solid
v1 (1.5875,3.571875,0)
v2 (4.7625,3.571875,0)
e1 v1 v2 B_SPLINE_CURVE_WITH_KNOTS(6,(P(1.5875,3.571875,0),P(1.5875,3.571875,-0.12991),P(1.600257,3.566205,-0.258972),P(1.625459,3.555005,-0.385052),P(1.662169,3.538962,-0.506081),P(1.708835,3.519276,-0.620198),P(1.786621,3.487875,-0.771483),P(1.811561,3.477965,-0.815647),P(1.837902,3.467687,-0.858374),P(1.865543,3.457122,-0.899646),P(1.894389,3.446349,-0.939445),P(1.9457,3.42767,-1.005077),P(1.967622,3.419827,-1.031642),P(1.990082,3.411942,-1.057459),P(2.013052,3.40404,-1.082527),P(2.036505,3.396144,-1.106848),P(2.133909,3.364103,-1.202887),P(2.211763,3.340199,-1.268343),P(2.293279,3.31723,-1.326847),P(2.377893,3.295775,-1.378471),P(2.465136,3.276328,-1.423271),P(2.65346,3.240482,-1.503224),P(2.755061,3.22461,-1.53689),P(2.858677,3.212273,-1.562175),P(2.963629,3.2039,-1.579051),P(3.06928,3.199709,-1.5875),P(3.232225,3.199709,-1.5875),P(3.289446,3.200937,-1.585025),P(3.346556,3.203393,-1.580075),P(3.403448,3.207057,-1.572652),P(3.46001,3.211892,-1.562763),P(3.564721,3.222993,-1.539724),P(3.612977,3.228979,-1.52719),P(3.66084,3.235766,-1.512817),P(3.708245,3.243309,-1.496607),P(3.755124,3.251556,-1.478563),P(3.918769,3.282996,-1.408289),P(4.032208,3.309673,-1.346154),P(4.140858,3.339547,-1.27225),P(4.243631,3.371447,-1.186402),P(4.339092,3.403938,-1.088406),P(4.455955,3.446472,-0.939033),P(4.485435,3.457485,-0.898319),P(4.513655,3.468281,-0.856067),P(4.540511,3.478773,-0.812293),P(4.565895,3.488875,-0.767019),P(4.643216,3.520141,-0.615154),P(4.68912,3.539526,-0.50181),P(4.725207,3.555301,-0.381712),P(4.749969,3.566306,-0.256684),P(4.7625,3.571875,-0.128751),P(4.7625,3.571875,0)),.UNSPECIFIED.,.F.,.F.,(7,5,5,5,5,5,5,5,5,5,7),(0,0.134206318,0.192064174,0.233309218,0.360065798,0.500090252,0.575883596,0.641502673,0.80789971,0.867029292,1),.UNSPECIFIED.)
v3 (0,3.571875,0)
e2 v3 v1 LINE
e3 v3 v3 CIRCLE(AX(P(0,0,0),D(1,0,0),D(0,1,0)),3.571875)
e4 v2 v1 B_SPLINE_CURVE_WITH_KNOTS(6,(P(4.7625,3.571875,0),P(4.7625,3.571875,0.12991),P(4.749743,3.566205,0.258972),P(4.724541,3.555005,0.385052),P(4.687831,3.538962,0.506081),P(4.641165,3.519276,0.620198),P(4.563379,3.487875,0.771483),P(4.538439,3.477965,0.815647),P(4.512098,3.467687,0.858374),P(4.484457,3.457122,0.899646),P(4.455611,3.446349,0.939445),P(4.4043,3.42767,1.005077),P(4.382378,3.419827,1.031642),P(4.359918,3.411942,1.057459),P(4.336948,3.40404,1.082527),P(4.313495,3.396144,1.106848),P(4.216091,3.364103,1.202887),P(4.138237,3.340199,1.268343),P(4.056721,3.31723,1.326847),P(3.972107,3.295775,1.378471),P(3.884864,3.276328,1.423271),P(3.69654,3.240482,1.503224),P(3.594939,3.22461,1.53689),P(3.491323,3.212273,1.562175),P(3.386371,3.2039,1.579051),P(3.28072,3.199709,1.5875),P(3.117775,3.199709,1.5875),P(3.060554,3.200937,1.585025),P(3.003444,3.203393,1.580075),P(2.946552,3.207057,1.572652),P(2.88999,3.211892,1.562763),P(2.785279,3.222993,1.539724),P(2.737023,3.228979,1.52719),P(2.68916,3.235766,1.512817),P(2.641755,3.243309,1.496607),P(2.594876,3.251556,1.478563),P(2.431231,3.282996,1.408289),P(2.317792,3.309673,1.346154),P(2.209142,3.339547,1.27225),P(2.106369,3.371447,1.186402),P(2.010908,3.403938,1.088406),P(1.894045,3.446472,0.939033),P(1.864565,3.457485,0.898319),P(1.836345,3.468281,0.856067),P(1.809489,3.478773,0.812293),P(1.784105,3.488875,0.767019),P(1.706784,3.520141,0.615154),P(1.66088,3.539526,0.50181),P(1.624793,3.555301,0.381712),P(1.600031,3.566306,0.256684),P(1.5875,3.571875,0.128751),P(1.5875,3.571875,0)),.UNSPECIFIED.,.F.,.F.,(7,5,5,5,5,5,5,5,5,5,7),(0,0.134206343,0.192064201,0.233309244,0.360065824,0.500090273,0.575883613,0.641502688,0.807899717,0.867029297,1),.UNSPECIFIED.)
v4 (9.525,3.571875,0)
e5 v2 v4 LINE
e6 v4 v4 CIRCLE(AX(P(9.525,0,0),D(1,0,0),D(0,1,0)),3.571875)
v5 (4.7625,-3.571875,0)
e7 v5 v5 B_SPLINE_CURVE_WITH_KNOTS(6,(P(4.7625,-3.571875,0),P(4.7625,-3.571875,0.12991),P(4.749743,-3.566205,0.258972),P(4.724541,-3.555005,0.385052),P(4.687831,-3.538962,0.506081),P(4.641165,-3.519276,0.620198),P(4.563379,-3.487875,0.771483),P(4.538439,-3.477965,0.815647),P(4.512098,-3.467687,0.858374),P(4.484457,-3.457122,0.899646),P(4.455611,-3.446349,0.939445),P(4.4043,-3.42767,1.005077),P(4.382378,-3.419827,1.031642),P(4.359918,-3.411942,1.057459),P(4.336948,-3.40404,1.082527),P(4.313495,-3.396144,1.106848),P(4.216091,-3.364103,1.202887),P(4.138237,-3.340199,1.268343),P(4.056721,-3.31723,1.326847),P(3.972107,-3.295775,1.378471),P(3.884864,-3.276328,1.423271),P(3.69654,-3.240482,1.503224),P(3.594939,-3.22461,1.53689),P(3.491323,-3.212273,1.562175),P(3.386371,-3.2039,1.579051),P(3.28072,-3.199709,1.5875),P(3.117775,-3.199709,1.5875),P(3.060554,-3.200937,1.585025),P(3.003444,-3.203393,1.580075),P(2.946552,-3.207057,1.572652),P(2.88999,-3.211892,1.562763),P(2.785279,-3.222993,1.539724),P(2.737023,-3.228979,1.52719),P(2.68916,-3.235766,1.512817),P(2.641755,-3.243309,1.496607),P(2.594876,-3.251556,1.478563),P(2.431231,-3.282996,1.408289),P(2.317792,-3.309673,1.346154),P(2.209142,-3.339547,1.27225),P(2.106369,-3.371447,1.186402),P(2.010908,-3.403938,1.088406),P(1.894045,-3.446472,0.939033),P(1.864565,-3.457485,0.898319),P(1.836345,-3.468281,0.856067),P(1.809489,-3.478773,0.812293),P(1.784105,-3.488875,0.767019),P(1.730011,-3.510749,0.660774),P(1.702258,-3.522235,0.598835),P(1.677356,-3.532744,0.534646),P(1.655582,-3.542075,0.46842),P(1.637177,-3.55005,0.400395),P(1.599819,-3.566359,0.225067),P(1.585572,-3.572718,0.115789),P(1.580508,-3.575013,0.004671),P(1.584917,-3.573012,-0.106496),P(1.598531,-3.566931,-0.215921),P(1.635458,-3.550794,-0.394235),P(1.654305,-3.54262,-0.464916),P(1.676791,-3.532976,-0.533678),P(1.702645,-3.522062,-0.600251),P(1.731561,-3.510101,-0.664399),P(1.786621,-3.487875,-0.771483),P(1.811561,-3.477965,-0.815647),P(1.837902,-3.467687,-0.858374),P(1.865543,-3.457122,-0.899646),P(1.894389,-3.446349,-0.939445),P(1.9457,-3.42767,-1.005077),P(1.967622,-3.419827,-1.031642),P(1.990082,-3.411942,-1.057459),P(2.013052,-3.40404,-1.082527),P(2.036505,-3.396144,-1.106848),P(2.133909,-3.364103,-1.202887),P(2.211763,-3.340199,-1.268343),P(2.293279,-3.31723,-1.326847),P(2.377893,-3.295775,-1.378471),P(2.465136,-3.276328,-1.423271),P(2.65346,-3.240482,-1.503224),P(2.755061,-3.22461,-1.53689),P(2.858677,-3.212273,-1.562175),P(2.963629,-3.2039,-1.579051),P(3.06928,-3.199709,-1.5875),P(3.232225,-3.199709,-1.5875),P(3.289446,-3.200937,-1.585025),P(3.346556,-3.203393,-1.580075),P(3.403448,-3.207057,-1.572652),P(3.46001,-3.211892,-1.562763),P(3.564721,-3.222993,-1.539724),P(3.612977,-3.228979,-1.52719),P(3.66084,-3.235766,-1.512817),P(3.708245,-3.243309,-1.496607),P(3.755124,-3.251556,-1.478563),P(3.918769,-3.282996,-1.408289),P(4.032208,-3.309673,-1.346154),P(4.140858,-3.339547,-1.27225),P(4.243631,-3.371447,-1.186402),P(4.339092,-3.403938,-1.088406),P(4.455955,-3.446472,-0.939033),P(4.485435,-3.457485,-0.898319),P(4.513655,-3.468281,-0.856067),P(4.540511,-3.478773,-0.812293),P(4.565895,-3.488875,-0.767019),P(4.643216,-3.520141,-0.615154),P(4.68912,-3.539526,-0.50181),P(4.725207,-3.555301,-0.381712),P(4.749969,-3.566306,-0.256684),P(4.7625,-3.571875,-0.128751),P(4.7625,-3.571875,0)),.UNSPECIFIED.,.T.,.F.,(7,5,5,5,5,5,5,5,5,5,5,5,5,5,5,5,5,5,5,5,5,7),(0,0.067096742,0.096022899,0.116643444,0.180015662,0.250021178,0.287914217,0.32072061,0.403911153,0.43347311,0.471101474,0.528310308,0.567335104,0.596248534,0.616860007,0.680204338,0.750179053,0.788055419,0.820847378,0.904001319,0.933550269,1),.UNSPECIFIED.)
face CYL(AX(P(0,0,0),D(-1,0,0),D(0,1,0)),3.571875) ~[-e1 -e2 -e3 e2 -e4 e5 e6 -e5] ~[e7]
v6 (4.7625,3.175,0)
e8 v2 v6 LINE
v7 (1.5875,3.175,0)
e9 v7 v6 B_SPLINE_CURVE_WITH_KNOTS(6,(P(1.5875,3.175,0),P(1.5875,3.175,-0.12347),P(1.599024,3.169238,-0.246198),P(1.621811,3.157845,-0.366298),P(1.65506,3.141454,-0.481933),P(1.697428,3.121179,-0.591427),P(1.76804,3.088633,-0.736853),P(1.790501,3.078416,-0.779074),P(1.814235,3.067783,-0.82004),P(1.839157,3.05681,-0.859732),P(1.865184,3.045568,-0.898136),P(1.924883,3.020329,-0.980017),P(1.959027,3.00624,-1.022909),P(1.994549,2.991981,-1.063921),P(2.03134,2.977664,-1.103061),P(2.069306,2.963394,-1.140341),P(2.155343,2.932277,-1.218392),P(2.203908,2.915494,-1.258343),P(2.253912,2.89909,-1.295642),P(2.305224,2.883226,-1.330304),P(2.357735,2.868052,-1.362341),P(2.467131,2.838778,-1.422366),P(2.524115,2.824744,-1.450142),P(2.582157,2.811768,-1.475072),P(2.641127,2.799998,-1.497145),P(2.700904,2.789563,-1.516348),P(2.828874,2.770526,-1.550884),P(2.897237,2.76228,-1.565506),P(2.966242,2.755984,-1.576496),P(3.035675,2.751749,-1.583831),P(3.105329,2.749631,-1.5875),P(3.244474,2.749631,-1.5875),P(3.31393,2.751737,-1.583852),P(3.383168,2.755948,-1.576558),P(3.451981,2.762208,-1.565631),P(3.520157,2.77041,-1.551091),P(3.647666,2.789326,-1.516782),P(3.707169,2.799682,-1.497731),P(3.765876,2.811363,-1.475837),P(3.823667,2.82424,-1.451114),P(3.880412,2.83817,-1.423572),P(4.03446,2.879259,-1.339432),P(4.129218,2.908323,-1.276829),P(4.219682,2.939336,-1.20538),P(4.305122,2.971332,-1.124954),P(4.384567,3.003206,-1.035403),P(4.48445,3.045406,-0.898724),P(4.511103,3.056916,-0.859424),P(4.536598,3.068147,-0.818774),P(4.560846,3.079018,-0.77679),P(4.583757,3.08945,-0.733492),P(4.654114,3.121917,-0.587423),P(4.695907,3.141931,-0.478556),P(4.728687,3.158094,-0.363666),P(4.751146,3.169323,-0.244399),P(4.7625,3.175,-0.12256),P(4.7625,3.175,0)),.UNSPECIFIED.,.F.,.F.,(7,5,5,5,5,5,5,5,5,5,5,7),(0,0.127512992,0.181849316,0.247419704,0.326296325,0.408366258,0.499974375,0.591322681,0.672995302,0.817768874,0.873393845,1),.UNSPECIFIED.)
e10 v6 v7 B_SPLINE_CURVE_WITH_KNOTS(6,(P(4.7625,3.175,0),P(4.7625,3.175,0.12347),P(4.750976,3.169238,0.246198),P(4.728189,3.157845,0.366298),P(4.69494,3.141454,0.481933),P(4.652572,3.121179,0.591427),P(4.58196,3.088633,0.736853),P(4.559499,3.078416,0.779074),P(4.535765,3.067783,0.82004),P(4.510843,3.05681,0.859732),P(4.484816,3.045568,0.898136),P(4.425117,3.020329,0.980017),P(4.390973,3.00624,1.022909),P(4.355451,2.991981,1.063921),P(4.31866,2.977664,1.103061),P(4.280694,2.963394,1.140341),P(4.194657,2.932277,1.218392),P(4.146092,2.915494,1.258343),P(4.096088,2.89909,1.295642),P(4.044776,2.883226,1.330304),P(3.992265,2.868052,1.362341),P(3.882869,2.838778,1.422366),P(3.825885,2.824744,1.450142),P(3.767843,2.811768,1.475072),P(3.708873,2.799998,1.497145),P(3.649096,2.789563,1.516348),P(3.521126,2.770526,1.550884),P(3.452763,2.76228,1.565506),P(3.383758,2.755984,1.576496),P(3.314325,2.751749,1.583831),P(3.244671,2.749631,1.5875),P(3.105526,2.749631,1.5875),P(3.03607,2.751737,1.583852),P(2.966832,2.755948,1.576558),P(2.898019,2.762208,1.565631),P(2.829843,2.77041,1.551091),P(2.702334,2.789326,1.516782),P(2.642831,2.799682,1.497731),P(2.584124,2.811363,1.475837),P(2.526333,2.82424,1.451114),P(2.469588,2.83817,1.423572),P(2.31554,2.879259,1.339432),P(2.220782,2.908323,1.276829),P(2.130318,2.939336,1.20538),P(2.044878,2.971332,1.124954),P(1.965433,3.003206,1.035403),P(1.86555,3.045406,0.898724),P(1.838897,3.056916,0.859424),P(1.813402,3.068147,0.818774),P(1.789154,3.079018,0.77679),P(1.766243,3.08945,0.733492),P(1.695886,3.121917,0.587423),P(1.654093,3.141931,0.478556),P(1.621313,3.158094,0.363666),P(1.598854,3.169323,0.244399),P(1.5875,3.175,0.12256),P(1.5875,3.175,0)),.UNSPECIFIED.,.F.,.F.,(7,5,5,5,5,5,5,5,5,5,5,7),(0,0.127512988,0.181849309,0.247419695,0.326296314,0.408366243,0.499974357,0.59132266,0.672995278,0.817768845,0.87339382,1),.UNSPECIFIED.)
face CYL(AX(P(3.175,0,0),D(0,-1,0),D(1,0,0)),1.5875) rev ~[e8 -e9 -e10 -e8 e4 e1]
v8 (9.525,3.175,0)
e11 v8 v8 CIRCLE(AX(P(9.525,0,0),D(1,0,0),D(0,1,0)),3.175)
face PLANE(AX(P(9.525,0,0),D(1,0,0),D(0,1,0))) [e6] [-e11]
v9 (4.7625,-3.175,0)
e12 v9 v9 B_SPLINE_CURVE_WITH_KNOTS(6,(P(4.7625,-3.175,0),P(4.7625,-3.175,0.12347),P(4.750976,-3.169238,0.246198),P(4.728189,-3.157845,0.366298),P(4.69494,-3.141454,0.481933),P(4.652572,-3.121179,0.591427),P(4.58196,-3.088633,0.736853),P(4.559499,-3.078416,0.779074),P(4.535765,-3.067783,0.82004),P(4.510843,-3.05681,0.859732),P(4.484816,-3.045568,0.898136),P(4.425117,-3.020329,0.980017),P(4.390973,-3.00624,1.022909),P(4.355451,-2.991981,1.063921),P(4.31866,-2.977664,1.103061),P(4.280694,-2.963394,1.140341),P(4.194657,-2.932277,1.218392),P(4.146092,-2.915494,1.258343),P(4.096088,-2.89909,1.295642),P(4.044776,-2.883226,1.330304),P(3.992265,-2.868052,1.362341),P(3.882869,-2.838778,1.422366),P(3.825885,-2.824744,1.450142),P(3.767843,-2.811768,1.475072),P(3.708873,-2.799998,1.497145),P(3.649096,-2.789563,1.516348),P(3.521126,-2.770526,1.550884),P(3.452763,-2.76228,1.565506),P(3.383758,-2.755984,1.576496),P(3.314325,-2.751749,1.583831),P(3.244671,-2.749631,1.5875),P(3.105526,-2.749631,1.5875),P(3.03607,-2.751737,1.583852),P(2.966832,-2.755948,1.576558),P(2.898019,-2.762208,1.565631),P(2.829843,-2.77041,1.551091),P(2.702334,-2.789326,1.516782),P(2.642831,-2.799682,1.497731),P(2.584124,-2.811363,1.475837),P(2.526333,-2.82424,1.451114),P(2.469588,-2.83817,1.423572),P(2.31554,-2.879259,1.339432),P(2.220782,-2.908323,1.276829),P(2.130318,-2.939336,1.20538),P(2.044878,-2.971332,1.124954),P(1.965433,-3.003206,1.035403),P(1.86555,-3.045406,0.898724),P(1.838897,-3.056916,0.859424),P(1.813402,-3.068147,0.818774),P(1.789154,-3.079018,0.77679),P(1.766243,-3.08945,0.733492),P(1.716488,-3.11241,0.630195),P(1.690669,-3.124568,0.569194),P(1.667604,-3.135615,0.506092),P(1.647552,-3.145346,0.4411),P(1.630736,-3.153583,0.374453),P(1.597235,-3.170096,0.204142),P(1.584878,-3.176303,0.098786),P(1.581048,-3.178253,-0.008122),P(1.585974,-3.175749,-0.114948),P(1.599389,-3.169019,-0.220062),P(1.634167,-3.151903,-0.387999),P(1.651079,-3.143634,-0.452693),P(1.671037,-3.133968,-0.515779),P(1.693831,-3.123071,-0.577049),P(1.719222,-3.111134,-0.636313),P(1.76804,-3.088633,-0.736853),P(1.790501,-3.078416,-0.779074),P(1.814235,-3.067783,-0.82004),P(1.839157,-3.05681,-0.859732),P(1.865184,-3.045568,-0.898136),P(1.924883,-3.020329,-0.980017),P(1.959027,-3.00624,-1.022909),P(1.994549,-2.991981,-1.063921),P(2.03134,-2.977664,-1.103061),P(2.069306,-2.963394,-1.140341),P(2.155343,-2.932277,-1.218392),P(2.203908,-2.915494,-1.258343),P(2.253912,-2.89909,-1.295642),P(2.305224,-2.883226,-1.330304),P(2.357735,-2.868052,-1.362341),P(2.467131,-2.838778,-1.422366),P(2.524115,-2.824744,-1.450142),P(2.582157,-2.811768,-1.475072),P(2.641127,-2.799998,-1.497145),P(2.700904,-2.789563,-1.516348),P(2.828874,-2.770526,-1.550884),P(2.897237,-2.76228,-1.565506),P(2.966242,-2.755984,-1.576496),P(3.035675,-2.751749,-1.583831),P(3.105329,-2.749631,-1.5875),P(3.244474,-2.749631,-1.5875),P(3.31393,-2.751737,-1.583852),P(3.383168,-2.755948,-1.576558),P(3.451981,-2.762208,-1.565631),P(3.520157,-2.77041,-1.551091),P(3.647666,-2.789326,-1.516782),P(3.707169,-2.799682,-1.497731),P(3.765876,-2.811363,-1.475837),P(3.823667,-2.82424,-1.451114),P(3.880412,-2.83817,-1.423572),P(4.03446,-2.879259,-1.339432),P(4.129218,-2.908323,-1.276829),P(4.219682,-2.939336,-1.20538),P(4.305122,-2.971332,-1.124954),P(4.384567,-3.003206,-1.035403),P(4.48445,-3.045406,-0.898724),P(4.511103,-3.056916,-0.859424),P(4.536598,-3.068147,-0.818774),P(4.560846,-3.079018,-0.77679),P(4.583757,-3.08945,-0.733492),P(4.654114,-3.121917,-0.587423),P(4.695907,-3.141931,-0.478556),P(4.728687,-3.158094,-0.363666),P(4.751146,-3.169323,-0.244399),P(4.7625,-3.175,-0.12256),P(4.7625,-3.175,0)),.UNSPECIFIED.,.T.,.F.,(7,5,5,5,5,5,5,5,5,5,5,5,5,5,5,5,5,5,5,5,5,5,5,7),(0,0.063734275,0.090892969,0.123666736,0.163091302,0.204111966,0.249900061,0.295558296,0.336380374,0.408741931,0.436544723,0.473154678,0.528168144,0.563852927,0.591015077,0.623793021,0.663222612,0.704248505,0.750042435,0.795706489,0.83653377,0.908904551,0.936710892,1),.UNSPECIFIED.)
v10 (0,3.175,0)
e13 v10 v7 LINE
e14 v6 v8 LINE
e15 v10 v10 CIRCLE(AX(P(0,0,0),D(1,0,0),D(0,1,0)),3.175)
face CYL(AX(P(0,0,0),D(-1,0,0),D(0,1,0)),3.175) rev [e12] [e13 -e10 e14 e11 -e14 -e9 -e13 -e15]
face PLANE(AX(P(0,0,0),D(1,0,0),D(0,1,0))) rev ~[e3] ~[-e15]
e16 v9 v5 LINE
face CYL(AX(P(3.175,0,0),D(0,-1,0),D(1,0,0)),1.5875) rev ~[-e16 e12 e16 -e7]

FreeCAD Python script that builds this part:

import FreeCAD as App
import Part
import Sketcher
from FreeCAD import Vector
Q = App.Units.Quantity

doc = App.newDocument("Part")
body = doc.addObject("PartDesign::Body", "Body")

# Sketch on YZ plane
sketch1 = doc.addObject("Sketcher::SketchObject", "Sketch")
body.addObject(sketch1)
sketch1.AttachmentSupport = (doc.YZ_Plane, [""])
sketch1.MapMode = "FlatFace"
sketch1.addGeometry(Part.Circle(Vector(0, 0, 0), Vector(0, 0, 1), 3.6), False)
sketch1.addGeometry(Part.Circle(Vector(0, 0, 0), Vector(0, 0, 1), 3.2), False)
sketch1.addConstraint(Sketcher.Constraint("Coincident", 0, 3, -1, 1))
sketch1.addConstraint(Sketcher.Constraint("Coincident", 1, 3, -1, 1))
sketch1.addConstraint(Sketcher.Constraint("Diameter", 1, Q("0.25 in")))
sketch1.addConstraint(Sketcher.Constraint("Diameter", 0, Q("0.28125 in")))
pad1 = doc.addObject("PartDesign::Pad", "Pad")
body.addObject(pad1)
pad1.Profile = sketch1
pad1.Length = Q("0.375 in")

# Sketch on XZ plane
sketch2 = doc.addObject("Sketcher::SketchObject", "Sketch001")
body.addObject(sketch2)
sketch2.AttachmentSupport = (doc.XZ_Plane, [""])
sketch2.MapMode = "FlatFace"
sketch2.addGeometry(Part.Circle(Vector(3.2, 0, 0), Vector(0, 0, 1), 1.6), False)
sketch2.addConstraint(Sketcher.Constraint("PointOnObject", 0, 3, -1))
sketch2.addConstraint(Sketcher.Constraint("Diameter", 0, Q("0.125 in")))
sketch2.addConstraint(Sketcher.Constraint("DistanceX", -1, 1, 0, 3, Q("0.125 in")))
pocket1 = doc.addObject("PartDesign::Pocket", "Pocket")
body.addObject(pocket1)
pocket1.Profile = sketch2
pocket1.Length = Q("1 in")
pocket1.Midplane = True

doc.recompute()
